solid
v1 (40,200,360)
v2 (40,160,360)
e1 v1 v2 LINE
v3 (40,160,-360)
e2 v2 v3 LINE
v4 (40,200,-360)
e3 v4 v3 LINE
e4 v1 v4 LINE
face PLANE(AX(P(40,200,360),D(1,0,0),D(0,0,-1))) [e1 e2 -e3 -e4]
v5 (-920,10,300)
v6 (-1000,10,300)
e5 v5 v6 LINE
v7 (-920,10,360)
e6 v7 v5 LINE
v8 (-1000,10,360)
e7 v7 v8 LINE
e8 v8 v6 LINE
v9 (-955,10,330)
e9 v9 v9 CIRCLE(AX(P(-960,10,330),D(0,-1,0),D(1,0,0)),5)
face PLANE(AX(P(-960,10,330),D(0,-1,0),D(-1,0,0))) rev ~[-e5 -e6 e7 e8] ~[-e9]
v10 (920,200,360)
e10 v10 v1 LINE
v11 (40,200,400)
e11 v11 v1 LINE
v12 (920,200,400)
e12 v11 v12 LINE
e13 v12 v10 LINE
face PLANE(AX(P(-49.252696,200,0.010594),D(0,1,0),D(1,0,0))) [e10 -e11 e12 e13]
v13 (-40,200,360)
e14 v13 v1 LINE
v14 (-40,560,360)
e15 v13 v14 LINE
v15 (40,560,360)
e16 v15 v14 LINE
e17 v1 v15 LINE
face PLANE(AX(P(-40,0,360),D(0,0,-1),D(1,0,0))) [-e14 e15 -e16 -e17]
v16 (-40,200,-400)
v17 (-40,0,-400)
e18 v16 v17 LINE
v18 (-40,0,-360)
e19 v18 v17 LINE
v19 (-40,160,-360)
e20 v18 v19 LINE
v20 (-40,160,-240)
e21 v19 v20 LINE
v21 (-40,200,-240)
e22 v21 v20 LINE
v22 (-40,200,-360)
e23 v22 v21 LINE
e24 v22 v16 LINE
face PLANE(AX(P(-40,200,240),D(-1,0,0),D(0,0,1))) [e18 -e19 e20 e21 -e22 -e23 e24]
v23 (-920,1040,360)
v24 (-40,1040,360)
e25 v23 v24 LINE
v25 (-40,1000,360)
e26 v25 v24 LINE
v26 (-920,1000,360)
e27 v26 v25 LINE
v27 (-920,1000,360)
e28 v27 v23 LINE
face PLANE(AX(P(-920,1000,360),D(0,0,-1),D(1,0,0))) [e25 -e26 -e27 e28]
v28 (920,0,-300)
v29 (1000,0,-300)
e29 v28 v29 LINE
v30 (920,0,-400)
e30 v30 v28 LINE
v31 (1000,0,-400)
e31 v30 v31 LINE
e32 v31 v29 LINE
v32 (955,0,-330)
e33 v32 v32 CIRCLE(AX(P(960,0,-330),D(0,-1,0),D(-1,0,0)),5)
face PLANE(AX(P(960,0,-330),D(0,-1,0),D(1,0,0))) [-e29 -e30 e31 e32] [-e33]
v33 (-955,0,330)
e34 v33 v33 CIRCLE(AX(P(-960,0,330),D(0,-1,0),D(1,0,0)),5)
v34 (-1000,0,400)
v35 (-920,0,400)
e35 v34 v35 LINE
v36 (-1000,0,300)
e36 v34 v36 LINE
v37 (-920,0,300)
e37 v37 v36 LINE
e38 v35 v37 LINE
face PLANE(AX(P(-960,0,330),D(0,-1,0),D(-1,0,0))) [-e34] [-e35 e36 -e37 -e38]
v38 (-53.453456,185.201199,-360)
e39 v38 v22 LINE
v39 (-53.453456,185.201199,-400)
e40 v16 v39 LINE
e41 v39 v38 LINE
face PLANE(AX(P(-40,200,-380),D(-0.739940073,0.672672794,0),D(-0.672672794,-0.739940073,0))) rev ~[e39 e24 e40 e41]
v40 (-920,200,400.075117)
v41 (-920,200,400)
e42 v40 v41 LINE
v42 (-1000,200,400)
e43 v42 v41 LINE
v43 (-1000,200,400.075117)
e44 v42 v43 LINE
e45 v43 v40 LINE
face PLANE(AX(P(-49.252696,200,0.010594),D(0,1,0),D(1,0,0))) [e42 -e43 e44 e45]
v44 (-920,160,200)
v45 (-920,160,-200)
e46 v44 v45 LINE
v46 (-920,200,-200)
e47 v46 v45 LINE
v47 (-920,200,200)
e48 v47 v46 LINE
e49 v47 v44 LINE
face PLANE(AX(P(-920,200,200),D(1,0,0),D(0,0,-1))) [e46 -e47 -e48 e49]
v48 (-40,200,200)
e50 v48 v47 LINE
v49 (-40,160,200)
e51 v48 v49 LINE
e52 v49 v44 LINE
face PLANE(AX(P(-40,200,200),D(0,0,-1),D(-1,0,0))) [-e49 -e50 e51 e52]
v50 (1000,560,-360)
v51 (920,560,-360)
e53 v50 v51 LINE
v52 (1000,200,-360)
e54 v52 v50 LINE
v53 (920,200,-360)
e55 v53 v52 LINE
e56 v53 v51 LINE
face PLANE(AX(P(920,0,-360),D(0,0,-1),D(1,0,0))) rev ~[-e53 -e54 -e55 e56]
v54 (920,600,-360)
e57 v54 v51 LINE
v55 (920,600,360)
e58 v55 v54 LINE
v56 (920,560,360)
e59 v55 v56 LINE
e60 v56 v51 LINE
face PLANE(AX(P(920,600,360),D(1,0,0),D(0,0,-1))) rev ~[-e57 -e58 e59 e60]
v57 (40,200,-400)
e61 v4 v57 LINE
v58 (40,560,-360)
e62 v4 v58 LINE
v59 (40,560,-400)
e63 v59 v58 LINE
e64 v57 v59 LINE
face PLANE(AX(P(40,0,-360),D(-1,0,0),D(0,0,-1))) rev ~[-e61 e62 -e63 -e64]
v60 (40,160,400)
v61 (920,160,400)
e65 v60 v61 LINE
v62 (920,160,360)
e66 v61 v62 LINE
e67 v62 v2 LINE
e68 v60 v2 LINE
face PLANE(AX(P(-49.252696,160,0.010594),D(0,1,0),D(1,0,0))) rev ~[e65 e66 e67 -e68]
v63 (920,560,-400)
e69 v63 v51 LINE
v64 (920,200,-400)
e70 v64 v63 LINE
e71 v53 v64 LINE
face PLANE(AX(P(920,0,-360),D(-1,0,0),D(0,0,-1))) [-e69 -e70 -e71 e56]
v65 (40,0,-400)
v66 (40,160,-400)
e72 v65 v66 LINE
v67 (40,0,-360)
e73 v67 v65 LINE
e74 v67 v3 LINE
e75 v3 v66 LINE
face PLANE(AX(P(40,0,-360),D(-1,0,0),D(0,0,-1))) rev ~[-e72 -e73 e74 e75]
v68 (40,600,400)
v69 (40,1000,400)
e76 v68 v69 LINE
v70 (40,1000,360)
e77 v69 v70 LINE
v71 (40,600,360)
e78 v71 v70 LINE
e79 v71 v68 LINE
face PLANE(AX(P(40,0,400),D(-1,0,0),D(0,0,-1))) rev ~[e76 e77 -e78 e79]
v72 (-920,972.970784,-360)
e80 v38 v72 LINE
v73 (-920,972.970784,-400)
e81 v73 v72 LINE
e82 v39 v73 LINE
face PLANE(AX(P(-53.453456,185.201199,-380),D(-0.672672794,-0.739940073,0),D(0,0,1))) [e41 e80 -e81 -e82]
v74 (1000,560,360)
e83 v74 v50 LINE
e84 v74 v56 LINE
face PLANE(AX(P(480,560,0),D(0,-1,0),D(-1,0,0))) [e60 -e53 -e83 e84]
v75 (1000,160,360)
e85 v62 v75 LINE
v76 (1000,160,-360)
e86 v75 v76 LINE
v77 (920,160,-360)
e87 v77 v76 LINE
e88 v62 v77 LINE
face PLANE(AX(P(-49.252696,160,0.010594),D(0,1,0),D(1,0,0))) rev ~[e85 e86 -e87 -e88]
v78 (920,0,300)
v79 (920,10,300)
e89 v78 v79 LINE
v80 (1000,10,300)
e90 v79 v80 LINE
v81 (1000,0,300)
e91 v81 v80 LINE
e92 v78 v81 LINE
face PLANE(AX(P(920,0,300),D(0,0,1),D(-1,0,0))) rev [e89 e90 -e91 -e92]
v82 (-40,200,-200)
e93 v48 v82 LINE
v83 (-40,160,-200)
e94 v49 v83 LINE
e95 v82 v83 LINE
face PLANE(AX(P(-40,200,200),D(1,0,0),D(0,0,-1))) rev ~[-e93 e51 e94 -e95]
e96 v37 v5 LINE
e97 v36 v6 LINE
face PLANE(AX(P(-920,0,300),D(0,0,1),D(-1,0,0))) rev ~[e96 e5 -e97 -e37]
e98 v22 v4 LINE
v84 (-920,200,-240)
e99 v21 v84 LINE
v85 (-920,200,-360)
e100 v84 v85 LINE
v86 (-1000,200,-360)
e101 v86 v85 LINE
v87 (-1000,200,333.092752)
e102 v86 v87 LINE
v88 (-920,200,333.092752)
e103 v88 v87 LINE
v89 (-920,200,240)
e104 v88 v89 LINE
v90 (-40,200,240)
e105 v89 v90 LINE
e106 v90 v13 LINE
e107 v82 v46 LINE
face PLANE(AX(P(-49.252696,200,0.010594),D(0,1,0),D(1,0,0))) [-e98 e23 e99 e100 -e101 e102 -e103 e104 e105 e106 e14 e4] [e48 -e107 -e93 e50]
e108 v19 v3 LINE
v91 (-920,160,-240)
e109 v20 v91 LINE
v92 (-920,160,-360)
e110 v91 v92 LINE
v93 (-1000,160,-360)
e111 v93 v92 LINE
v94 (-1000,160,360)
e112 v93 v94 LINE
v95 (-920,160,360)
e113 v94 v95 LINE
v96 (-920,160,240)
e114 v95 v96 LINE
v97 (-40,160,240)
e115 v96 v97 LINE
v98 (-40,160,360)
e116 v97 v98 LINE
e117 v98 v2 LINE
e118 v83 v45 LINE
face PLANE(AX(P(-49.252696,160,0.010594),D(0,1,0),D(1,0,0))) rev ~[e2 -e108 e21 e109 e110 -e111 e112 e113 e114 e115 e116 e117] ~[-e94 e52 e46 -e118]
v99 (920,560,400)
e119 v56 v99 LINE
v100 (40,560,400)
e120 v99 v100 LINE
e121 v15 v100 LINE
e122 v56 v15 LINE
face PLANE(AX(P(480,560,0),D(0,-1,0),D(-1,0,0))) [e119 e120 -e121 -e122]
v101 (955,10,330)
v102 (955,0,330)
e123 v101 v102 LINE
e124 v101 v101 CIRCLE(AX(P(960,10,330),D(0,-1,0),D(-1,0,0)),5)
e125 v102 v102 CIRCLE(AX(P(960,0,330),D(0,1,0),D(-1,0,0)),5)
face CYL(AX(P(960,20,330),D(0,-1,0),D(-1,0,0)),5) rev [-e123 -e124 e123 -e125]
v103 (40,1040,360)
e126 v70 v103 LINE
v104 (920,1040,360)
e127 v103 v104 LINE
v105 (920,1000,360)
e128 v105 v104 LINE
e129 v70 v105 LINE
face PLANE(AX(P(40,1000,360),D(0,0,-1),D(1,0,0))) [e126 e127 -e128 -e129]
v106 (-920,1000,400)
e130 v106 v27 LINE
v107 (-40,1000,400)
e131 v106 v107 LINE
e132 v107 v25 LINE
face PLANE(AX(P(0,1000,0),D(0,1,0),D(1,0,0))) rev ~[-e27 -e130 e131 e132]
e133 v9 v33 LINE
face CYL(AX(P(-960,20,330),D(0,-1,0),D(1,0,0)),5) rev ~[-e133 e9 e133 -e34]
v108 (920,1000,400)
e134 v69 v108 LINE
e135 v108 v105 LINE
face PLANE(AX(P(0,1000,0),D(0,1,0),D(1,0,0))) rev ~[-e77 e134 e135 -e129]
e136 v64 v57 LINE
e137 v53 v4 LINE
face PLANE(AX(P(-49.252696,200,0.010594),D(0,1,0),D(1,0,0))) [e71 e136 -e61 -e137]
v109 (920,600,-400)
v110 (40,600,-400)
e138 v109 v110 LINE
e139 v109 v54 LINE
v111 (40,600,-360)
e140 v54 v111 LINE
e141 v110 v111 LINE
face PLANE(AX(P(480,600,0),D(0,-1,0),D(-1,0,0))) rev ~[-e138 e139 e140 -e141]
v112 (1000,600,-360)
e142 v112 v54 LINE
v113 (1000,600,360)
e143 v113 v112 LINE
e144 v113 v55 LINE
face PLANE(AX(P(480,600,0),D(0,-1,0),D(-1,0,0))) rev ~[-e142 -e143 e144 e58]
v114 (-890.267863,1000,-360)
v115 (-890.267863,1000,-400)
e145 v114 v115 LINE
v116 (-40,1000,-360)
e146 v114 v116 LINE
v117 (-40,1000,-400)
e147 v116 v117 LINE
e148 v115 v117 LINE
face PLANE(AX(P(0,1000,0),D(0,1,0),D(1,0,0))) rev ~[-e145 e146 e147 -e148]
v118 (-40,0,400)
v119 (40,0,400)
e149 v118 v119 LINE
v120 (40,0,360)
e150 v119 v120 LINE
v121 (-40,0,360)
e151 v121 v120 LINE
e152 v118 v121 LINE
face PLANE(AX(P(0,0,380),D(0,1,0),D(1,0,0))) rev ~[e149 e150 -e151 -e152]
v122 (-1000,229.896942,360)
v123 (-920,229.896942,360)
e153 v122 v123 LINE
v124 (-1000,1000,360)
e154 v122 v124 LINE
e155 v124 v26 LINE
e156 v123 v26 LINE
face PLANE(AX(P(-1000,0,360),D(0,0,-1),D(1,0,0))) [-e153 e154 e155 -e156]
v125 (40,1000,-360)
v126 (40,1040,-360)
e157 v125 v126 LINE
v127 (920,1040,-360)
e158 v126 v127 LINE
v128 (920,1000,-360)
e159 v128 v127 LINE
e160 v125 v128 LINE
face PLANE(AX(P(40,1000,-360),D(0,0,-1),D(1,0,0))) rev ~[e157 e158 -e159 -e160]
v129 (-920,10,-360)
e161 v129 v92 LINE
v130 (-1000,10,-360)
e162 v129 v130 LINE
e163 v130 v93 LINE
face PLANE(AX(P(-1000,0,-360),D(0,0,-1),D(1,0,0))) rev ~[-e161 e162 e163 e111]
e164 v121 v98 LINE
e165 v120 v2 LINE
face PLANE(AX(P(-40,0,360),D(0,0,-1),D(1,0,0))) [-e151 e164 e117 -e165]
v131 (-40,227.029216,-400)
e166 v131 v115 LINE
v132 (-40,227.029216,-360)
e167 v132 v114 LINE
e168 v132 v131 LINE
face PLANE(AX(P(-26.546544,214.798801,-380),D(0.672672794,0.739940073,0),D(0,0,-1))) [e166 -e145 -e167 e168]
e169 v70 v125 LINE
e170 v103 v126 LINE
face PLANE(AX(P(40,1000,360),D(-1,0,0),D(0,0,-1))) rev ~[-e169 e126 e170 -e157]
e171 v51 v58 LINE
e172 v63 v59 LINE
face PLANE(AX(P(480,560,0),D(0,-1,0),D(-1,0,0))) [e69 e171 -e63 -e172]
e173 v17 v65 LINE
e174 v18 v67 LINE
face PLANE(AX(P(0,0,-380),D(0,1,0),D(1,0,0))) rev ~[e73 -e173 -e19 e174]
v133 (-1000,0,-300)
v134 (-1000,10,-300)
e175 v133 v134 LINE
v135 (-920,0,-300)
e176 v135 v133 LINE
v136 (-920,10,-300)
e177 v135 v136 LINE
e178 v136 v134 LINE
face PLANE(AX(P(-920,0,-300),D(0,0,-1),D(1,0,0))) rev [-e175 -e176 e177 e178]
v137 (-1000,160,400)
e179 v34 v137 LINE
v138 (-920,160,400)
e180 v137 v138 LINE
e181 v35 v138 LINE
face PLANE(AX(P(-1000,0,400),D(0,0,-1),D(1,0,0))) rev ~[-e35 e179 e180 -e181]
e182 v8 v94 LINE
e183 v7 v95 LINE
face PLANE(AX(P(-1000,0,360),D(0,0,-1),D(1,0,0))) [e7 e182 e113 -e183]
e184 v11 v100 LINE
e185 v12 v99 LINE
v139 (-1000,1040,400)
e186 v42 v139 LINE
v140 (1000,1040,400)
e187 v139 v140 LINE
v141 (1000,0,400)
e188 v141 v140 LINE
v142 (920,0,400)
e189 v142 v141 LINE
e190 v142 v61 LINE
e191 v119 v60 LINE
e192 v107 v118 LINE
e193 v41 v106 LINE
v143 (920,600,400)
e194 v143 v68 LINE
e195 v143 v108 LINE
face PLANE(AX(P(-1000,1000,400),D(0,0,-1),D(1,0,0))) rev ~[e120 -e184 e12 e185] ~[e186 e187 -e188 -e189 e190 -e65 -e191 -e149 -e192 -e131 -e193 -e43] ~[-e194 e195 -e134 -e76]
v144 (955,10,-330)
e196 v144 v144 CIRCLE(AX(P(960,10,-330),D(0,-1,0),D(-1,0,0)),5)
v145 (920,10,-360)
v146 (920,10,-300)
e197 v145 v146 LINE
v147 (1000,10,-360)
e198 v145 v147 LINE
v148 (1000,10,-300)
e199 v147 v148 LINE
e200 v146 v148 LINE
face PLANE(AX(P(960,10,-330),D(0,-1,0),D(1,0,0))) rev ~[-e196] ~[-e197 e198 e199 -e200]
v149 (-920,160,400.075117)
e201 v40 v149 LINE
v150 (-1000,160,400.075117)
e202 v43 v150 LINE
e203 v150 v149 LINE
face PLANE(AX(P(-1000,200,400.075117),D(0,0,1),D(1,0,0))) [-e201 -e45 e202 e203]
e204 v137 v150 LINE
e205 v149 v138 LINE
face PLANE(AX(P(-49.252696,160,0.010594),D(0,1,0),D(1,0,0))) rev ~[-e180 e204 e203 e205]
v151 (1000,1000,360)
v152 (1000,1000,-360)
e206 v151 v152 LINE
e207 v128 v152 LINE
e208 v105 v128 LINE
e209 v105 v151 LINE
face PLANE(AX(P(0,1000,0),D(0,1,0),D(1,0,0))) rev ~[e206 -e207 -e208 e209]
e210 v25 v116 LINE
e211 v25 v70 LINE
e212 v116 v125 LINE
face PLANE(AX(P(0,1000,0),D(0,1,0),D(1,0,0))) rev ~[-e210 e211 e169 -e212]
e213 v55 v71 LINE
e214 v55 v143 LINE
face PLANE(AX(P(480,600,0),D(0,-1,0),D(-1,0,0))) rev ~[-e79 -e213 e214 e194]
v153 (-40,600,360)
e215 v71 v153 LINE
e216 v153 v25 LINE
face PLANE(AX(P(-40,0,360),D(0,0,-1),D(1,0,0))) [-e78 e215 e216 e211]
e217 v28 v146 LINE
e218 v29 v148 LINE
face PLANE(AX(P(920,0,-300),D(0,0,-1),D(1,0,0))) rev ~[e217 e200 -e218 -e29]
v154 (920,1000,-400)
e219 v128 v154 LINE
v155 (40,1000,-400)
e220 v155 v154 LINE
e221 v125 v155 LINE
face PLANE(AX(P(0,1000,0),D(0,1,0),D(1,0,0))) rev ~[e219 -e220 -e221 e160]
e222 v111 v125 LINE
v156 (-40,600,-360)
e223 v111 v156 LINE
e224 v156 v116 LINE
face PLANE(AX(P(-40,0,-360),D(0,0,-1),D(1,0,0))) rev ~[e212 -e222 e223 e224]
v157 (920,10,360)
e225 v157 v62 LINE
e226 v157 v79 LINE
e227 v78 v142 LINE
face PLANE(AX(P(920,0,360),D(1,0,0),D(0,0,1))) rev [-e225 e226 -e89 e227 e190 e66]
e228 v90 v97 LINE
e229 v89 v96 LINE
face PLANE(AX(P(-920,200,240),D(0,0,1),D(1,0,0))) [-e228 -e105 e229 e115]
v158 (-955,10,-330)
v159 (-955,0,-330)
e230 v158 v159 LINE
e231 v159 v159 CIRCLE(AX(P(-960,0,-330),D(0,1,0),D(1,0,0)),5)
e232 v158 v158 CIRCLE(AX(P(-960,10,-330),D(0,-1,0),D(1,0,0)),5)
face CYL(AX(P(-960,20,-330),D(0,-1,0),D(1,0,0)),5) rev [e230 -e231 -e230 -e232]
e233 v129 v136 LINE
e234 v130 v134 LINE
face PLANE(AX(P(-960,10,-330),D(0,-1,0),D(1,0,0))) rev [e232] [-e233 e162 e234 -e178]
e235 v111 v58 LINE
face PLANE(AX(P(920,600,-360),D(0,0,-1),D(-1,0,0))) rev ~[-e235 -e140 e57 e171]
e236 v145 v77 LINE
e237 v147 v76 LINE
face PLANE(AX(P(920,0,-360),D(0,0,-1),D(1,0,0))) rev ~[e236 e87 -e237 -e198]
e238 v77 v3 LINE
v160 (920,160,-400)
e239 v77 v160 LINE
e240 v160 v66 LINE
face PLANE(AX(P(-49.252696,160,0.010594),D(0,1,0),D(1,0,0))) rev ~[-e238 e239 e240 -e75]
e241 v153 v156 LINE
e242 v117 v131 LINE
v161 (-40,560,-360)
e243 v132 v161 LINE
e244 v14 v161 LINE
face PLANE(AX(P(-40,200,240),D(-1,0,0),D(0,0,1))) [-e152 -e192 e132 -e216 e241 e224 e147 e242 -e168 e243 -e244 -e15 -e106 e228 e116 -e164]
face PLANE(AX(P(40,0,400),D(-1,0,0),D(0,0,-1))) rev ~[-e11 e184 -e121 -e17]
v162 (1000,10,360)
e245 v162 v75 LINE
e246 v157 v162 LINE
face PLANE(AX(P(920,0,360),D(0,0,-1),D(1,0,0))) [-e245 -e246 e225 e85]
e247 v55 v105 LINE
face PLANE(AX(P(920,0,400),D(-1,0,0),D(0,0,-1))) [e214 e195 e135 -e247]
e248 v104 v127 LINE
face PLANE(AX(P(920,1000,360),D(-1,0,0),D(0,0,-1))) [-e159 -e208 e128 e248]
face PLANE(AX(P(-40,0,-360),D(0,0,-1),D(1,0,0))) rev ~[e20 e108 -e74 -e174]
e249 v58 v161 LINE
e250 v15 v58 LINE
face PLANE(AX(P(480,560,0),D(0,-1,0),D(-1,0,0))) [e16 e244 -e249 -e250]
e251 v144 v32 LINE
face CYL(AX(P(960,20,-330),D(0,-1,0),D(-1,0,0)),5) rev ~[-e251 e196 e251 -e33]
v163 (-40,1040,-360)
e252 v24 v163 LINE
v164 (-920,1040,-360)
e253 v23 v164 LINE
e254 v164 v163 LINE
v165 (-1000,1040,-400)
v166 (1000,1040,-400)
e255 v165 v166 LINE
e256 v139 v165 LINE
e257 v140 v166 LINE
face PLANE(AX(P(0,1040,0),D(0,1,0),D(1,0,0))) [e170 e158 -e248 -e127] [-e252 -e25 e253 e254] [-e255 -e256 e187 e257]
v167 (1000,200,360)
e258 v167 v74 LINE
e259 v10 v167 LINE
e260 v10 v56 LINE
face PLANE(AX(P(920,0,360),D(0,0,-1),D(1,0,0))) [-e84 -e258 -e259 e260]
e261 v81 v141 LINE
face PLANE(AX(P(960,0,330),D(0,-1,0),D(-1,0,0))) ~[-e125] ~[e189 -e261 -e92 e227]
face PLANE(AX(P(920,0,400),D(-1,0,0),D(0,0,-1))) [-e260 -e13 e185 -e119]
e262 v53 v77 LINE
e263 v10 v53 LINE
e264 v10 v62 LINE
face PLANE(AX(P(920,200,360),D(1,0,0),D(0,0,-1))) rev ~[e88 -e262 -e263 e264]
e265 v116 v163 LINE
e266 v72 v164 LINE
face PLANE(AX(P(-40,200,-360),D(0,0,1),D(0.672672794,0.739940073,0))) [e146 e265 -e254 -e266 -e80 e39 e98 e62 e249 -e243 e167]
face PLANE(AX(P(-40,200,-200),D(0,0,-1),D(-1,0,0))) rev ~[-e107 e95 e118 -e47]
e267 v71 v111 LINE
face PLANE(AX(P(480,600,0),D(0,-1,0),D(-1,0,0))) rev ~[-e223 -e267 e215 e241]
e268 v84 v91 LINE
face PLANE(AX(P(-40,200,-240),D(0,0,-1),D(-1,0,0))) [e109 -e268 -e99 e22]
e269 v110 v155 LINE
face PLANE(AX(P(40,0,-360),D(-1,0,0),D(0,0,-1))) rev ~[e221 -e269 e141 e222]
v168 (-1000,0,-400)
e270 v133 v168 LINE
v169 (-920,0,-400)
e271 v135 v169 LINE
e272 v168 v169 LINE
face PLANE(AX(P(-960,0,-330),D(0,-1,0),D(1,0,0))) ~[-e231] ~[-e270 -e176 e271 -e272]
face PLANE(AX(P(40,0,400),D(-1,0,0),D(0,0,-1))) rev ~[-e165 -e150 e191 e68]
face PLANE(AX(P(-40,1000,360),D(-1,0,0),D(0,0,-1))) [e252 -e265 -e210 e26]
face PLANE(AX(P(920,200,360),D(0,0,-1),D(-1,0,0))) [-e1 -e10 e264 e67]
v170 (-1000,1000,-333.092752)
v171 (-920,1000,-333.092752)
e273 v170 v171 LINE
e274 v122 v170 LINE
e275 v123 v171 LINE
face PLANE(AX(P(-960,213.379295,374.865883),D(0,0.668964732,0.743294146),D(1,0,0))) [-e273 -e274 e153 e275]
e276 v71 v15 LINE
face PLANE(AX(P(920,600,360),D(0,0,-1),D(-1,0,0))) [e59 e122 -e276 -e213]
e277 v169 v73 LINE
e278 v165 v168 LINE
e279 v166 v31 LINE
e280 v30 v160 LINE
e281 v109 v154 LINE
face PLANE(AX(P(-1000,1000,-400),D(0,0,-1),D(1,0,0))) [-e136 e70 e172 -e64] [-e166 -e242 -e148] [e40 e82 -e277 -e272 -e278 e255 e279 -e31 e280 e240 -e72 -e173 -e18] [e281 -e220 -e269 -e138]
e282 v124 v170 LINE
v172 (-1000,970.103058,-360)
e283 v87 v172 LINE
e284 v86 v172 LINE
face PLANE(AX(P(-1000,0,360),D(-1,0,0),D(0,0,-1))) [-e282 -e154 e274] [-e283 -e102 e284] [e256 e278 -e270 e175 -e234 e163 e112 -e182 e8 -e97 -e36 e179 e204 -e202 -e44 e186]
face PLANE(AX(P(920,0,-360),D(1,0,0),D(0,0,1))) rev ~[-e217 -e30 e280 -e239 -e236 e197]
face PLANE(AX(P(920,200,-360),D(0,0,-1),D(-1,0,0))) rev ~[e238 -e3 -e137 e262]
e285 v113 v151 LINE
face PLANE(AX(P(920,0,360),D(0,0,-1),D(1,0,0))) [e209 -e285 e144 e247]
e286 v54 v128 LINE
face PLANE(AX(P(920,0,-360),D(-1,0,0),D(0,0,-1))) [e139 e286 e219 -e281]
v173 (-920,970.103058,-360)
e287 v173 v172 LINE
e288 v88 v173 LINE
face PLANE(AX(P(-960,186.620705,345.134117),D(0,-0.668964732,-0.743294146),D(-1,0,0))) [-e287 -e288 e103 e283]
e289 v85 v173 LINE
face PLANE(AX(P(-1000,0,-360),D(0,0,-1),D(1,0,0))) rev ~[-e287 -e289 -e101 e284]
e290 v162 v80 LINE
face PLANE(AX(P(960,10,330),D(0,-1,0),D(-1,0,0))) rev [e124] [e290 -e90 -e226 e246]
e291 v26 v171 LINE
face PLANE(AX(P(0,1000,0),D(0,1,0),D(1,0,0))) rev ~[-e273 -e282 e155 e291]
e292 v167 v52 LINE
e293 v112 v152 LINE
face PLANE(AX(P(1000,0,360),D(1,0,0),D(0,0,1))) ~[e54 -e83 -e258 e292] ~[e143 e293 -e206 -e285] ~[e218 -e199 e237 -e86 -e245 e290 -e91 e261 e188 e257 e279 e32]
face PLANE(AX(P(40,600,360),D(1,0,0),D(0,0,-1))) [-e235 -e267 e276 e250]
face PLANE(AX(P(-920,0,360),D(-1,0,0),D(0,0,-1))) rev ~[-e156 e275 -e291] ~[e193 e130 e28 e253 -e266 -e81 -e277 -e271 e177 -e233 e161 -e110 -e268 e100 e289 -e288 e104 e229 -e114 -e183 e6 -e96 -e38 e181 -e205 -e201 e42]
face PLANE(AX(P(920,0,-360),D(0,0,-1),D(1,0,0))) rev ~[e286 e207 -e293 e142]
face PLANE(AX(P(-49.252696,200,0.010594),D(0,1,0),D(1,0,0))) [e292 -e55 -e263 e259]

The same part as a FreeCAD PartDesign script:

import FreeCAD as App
import Part
import Sketcher
from FreeCAD import Vector

doc = App.newDocument("Part")
params = doc.addObject("Spreadsheet::Sheet", "Params")
for row, (alias, value) in enumerate([
    ("sketch1_width", "80 mm"),
    ("sketch1_height", "40 mm"),
    ("pad1_length", "1000 mm"),
    ("sketch2_width", "80 mm"),
    ("sketch2_height", "40 mm"),
    ("pad2_length", "1000 mm"),
    ("sketch3_width", "80 mm"),
    ("sketch3_height", "40 mm"),
    ("pad3_length", "1000 mm"),
    ("sketch4_width", "80 mm"),
    ("sketch4_height", "40 mm"),
    ("pad4_length", "1000 mm"),
    ("sketch5_width", "80 mm"),
    ("sketch5_height", "40 mm"),
    ("pad5_length", "1000 mm"),
    ("sketch6_width", "80 mm"),
    ("sketch6_height", "40 mm"),
    ("pad6_length", "1000 mm"),
    ("sketch7_width", "880 mm"),
    ("sketch7_width2", "80 mm"),
    ("sketch7_width3", "1040 mm"),
    ("sketch7_height", "160 mm"),
    ("sketch7_height2", "800 mm"),
    ("pad7_length", "40 mm"),
    ("sketch8_width", "1040 mm"),
    ("sketch8_width2", "880 mm"),
    ("sketch8_height", "800 mm"),
    ("sketch8_height2", "720 mm"),
    ("pad8_length", "40 mm"),
    ("sketch9_width", "2000 mm"),
    ("sketch9_width2", "880 mm"),
    ("sketch9_height", "800 mm"),
    ("sketch9_height2", "720 mm"),
    ("pad9_length", "40 mm"),
    ("sketch10_width", "80 mm"),
    ("sketch10_height", "40 mm"),
    ("sketch12_width", "40 mm"),
    ("sketch14_width", "80 mm"),
    ("sketch14_height", "60 mm"),
    ("pad10_length", "10 mm"),
    ("sketch15_diameter", "10 mm"),
    ("hole_diameter", "10 mm"),
    ("hole_depth", "10 mm"),
    ("sketch16_width", "80 mm"),
    ("sketch16_height", "60 mm"),
    ("pad11_length", "10 mm"),
    ("sketch17_diameter", "10 mm"),
    ("hole2_diameter", "10 mm"),
    ("hole2_depth", "10 mm"),
], start=1):
    params.set(f"A{row}", alias)
    params.set(f"B{row}", "=" + value)
    params.setAlias(f"B{row}", alias)

body = doc.addObject("PartDesign::Body", "Body")

sketch1 = body.newObject("Sketcher::SketchObject", "Sketch")
sketch1.AttachmentSupport = (doc.getObject("XZ_Plane"), [""])
sketch1.MapMode = "FlatFace"
sketch1.addGeometry([
    Part.LineSegment(Vector(-1000, 360, 0), Vector(-1000, 400, 0)),
    Part.LineSegment(Vector(-1000, 400, 0), Vector(-920, 400, 0)),
    Part.LineSegment(Vector(-920, 400, 0), Vector(-920, 360, 0)),
    Part.LineSegment(Vector(-920, 360, 0), Vector(-1000, 360, 0)),
], False)
sketch1.addConstraint([
    Sketcher.Constraint("Coincident", 0, 2, 1, 1),
    Sketcher.Constraint("Coincident", 1, 2, 2, 1),
    Sketcher.Constraint("Coincident", 2, 2, 3, 1),
    Sketcher.Constraint("Coincident", 3, 2, 0, 1),
    Sketcher.Constraint("Vertical", 0),
    Sketcher.Constraint("Horizontal", 1),
    Sketcher.Constraint("Vertical", 2),
    Sketcher.Constraint("Horizontal", 3),
    Sketcher.Constraint("DistanceX", 1, 1, 1, 2, 80.0),
    Sketcher.Constraint("DistanceY", 0, 1, 0, 2, 40.0),
    Sketcher.Constraint("DistanceX", 0, 2, -1, 1, 1000.0),
    Sketcher.Constraint("DistanceY", -1, 1, 0, 2, 400.0),
])
sketch1.setExpression("Constraints[8]", "Params.sketch1_width")
sketch1.setExpression("Constraints[9]", "Params.sketch1_height")
pad1 = body.newObject("PartDesign::Pad", "Pad")
pad1.Profile = sketch1
pad1.setExpression("Length", "Params.pad1_length")
pad1.Reversed = True
body2 = doc.addObject("PartDesign::Body", "Body001")

sketch2 = body2.newObject("Sketcher::SketchObject", "Sketch001")
sketch2.AttachmentSupport = (doc.getObject("XZ_Plane001"), [""])
sketch2.MapMode = "FlatFace"
sketch2.addGeometry([
    Part.LineSegment(Vector(-40, 360, 0), Vector(-40, 400, 0)),
    Part.LineSegment(Vector(-40, 400, 0), Vector(40, 400, 0)),
    Part.LineSegment(Vector(40, 400, 0), Vector(40, 360, 0)),
    Part.LineSegment(Vector(40, 360, 0), Vector(-40, 360, 0)),
], False)
sketch2.addConstraint([
    Sketcher.Constraint("Coincident", 0, 2, 1, 1),
    Sketcher.Constraint("Coincident", 1, 2, 2, 1),
    Sketcher.Constraint("Coincident", 2, 2, 3, 1),
    Sketcher.Constraint("Coincident", 3, 2, 0, 1),
    Sketcher.Constraint("Vertical", 0),
    Sketcher.Constraint("Horizontal", 1),
    Sketcher.Constraint("Vertical", 2),
    Sketcher.Constraint("Horizontal", 3),
    Sketcher.Constraint("DistanceX", 1, 1, 1, 2, 80.0),
    Sketcher.Constraint("DistanceY", 0, 1, 0, 2, 40.0),
    Sketcher.Constraint("DistanceX", 0, 2, -1, 1, 40.0),
    Sketcher.Constraint("DistanceY", -1, 1, 0, 2, 400.0),
])
sketch2.setExpression("Constraints[8]", "Params.sketch2_width")
sketch2.setExpression("Constraints[9]", "Params.sketch2_height")
pad2 = body2.newObject("PartDesign::Pad", "Pad001")
pad2.Profile = sketch2
pad2.setExpression("Length", "Params.pad2_length")
pad2.Reversed = True
body3 = doc.addObject("PartDesign::Body", "Body002")

sketch3 = body3.newObject("Sketcher::SketchObject", "Sketch002")
sketch3.AttachmentSupport = (doc.getObject("XZ_Plane002"), [""])
sketch3.MapMode = "FlatFace"
sketch3.addGeometry([
    Part.LineSegment(Vector(-40, -400, 0), Vector(-40, -360, 0)),
    Part.LineSegment(Vector(-40, -360, 0), Vector(40, -360, 0)),
    Part.LineSegment(Vector(40, -360, 0), Vector(40, -400, 0)),
    Part.LineSegment(Vector(40, -400, 0), Vector(-40, -400, 0)),
], False)
sketch3.addConstraint([
    Sketcher.Constraint("Coincident", 0, 2, 1, 1),
    Sketcher.Constraint("Coincident", 1, 2, 2, 1),
    Sketcher.Constraint("Coincident", 2, 2, 3, 1),
    Sketcher.Constraint("Coincident", 3, 2, 0, 1),
    Sketcher.Constraint("Vertical", 0),
    Sketcher.Constraint("Horizontal", 1),
    Sketcher.Constraint("Vertical", 2),
    Sketcher.Constraint("Horizontal", 3),
    Sketcher.Constraint("DistanceX", 1, 1, 1, 2, 80.0),
    Sketcher.Constraint("DistanceY", 0, 1, 0, 2, 40.0),
    Sketcher.Constraint("DistanceX", 0, 2, -1, 1, 40.0),
    Sketcher.Constraint("DistanceY", 0, 2, -1, 1, 360.0),
])
sketch3.setExpression("Constraints[8]", "Params.sketch3_width")
sketch3.setExpression("Constraints[9]", "Params.sketch3_height")
pad3 = body3.newObject("PartDesign::Pad", "Pad002")
pad3.Profile = sketch3
pad3.setExpression("Length", "Params.pad3_length")
pad3.Reversed = True
body4 = doc.addObject("PartDesign::Body", "Body003")

sketch4 = body4.newObject("Sketcher::SketchObject", "Sketch003")
sketch4.AttachmentSupport = (doc.getObject("XZ_Plane003"), [""])
sketch4.MapMode = "FlatFace"
sketch4.addGeometry([
    Part.LineSegment(Vector(-1000, -400, 0), Vector(-1000, -360, 0)),
    Part.LineSegment(Vector(-1000, -360, 0), Vector(-920, -360, 0)),
    Part.LineSegment(Vector(-920, -360, 0), Vector(-920, -400, 0)),
    Part.LineSegment(Vector(-920, -400, 0), Vector(-1000, -400, 0)),
], False)
sketch4.addConstraint([
    Sketcher.Constraint("Coincident", 0, 2, 1, 1),
    Sketcher.Constraint("Coincident", 1, 2, 2, 1),
    Sketcher.Constraint("Coincident", 2, 2, 3, 1),
    Sketcher.Constraint("Coincident", 3, 2, 0, 1),
    Sketcher.Constraint("Vertical", 0),
    Sketcher.Constraint("Horizontal", 1),
    Sketcher.Constraint("Vertical", 2),
    Sketcher.Constraint("Horizontal", 3),
    Sketcher.Constraint("DistanceX", 1, 1, 1, 2, 80.0),
    Sketcher.Constraint("DistanceY", 0, 1, 0, 2, 40.0),
    Sketcher.Constraint("DistanceX", 0, 2, -1, 1, 1000.0),
    Sketcher.Constraint("DistanceY", 0, 2, -1, 1, 360.0),
])
sketch4.setExpression("Constraints[8]", "Params.sketch4_width")
sketch4.setExpression("Constraints[9]", "Params.sketch4_height")
pad4 = body4.newObject("PartDesign::Pad", "Pad003")
pad4.Profile = sketch4
pad4.setExpression("Length", "Params.pad4_length")
pad4.Reversed = True
body5 = doc.addObject("PartDesign::Body", "Body004")

sketch5 = body5.newObject("Sketcher::SketchObject", "Sketch004")
sketch5.AttachmentSupport = (doc.getObject("XZ_Plane004"), [""])
sketch5.MapMode = "FlatFace"
sketch5.addGeometry([
    Part.LineSegment(Vector(920, 360, 0), Vector(920, 400, 0)),
    Part.LineSegment(Vector(920, 400, 0), Vector(1000, 400, 0)),
    Part.LineSegment(Vector(1000, 400, 0), Vector(1000, 360, 0)),
    Part.LineSegment(Vector(1000, 360, 0), Vector(920, 360, 0)),
], False)
sketch5.addConstraint([
    Sketcher.Constraint("Coincident", 0, 2, 1, 1),
    Sketcher.Constraint("Coincident", 1, 2, 2, 1),
    Sketcher.Constraint("Coincident", 2, 2, 3, 1),
    Sketcher.Constraint("Coincident", 3, 2, 0, 1),
    Sketcher.Constraint("Vertical", 0),
    Sketcher.Constraint("Horizontal", 1),
    Sketcher.Constraint("Vertical", 2),
    Sketcher.Constraint("Horizontal", 3),
    Sketcher.Constraint("DistanceX", 1, 1, 1, 2, 80.0),
    Sketcher.Constraint("DistanceY", 0, 1, 0, 2, 40.0),
    Sketcher.Constraint("DistanceX", -1, 1, 0, 2, 920.0),
    Sketcher.Constraint("DistanceY", -1, 1, 0, 2, 400.0),
])
sketch5.setExpression("Constraints[8]", "Params.sketch5_width")
sketch5.setExpression("Constraints[9]", "Params.sketch5_height")
pad5 = body5.newObject("PartDesign::Pad", "Pad004")
pad5.Profile = sketch5
pad5.setExpression("Length", "Params.pad5_length")
pad5.Reversed = True
body6 = doc.addObject("PartDesign::Body", "Body005")

sketch6 = body6.newObject("Sketcher::SketchObject", "Sketch005")
sketch6.AttachmentSupport = (doc.getObject("XZ_Plane005"), [""])
sketch6.MapMode = "FlatFace"
sketch6.addGeometry([
    Part.LineSegment(Vector(920, -400, 0), Vector(920, -360, 0)),
    Part.LineSegment(Vector(920, -360, 0), Vector(1000, -360, 0)),
    Part.LineSegment(Vector(1000, -360, 0), Vector(1000, -400, 0)),
    Part.LineSegment(Vector(1000, -400, 0), Vector(920, -400, 0)),
], False)
sketch6.addConstraint([
    Sketcher.Constraint("Coincident", 0, 2, 1, 1),
    Sketcher.Constraint("Coincident", 1, 2, 2, 1),
    Sketcher.Constraint("Coincident", 2, 2, 3, 1),
    Sketcher.Constraint("Coincident", 3, 2, 0, 1),
    Sketcher.Constraint("Vertical", 0),
    Sketcher.Constraint("Horizontal", 1),
    Sketcher.Constraint("Vertical", 2),
    Sketcher.Constraint("Horizontal", 3),
    Sketcher.Constraint("DistanceX", 1, 1, 1, 2, 80.0),
    Sketcher.Constraint("DistanceY", 0, 1, 0, 2, 40.0),
    Sketcher.Constraint("DistanceX", -1, 1, 0, 2, 920.0),
    Sketcher.Constraint("DistanceY", 0, 2, -1, 1, 360.0),
])
sketch6.setExpression("Constraints[8]", "Params.sketch6_width")
sketch6.setExpression("Constraints[9]", "Params.sketch6_height")
pad6 = body6.newObject("PartDesign::Pad", "Pad005")
pad6.Profile = sketch6
pad6.setExpression("Length", "Params.pad6_length")
pad6.Reversed = True
body.AllowCompound = True
doc.recompute()

boolean = body.newObject("PartDesign::Boolean", "Boolean")
boolean.Type = "Fuse"
boolean.addObjects([body2])
doc.recompute()

boolean2 = body.newObject("PartDesign::Boolean", "Boolean001")
boolean2.Type = "Fuse"
boolean2.addObjects([body3])
doc.recompute()

boolean3 = body.newObject("PartDesign::Boolean", "Boolean002")
boolean3.Type = "Fuse"
boolean3.addObjects([body4])
doc.recompute()

boolean4 = body.newObject("PartDesign::Boolean", "Boolean003")
boolean4.Type = "Fuse"
boolean4.addObjects([body5])
doc.recompute()

boolean5 = body.newObject("PartDesign::Boolean", "Boolean004")
boolean5.Type = "Fuse"
boolean5.addObjects([body6])

sketch7 = body.newObject("Sketcher::SketchObject", "Sketch006")
sketch7.AttachmentSupport = (doc.getObject("XZ_Plane"), [""])
sketch7.MapMode = "FlatFace"
sketch7.AttachmentOffset = App.Placement(Vector(0, 0, -200), App.Rotation())
sketch7.addGeometry([
    Part.LineSegment(Vector(-40, 240, 0), Vector(-920, 240, 0)),
    Part.LineSegment(Vector(-920, 240, 0), Vector(-920, 400.075117, 0)),
    Part.LineSegment(Vector(-920, 400.075117, 0), Vector(-1000, 400.075117, 0)),
    Part.LineSegment(Vector(-1000, 400.075117, 0), Vector(-1000, -400, 0)),
    Part.LineSegment(Vector(-1000, -400, 0), Vector(-920, -400, 0)),
    Part.LineSegment(Vector(-920, -400, 0), Vector(-920, -240, 0)),
    Part.LineSegment(Vector(-920, -240, 0), Vector(-40, -240, 0)),
    Part.LineSegment(Vector(-40, -240, 0), Vector(-40, -400, 0)),
    Part.LineSegment(Vector(-40, -400, 0), Vector(1000, -400, 0)),
    Part.LineSegment(Vector(1000, -400, 0), Vector(1000, 400, 0)),
    Part.LineSegment(Vector(1000, 400, 0), Vector(-40, 400, 0)),
    Part.LineSegment(Vector(-40, 400, 0), Vector(-40, 240, 0)),
    Part.LineSegment(Vector(-40, 200, 0), Vector(-40, -200, 0)),
    Part.LineSegment(Vector(-40, -200, 0), Vector(-920, -200, 0)),
    Part.LineSegment(Vector(-920, -200, 0), Vector(-920, 200, 0)),
    Part.LineSegment(Vector(-920, 200, 0), Vector(-40, 200, 0)),
    Part.LineSegment(Vector(920, 360, 0), Vector(920, -360, 0)),
    Part.LineSegment(Vector(920, -360, 0), Vector(40, -360, 0)),
    Part.LineSegment(Vector(40, -360, 0), Vector(40, 360, 0)),
    Part.LineSegment(Vector(40, 360, 0), Vector(920, 360, 0)),
], False)
sketch7.addConstraint([
    Sketcher.Constraint("Coincident", 0, 2, 1, 1),
    Sketcher.Constraint("Coincident", 1, 2, 2, 1),
    Sketcher.Constraint("Coincident", 2, 2, 3, 1),
    Sketcher.Constraint("Coincident", 3, 2, 4, 1),
    Sketcher.Constraint("Coincident", 4, 2, 5, 1),
    Sketcher.Constraint("Coincident", 5, 2, 6, 1),
    Sketcher.Constraint("Coincident", 6, 2, 7, 1),
    Sketcher.Constraint("Coincident", 7, 2, 8, 1),
    Sketcher.Constraint("Coincident", 8, 2, 9, 1),
    Sketcher.Constraint("Coincident", 9, 2, 10, 1),
    Sketcher.Constraint("Coincident", 10, 2, 11, 1),
    Sketcher.Constraint("Coincident", 11, 2, 0, 1),
    Sketcher.Constraint("Coincident", 12, 2, 13, 1),
    Sketcher.Constraint("Coincident", 13, 2, 14, 1),
    Sketcher.Constraint("Coincident", 14, 2, 15, 1),
    Sketcher.Constraint("Coincident", 15, 2, 12, 1),
    Sketcher.Constraint("Coincident", 16, 2, 17, 1),
    Sketcher.Constraint("Coincident", 17, 2, 18, 1),
    Sketcher.Constraint("Coincident", 18, 2, 19, 1),
    Sketcher.Constraint("Coincident", 19, 2, 16, 1),
    Sketcher.Constraint("Horizontal", 0),
    Sketcher.Constraint("Vertical", 1),
    Sketcher.Constraint("Horizontal", 2),
    Sketcher.Constraint("Vertical", 3),
    Sketcher.Constraint("Horizontal", 4),
    Sketcher.Constraint("Vertical", 5),
    Sketcher.Constraint("Horizontal", 6),
    Sketcher.Constraint("Vertical", 7),
    Sketcher.Constraint("Horizontal", 8),
    Sketcher.Constraint("Vertical", 9),
    Sketcher.Constraint("Horizontal", 10),
    Sketcher.Constraint("Vertical", 11),
    Sketcher.Constraint("Vertical", 12),
    Sketcher.Constraint("Horizontal", 13),
    Sketcher.Constraint("Vertical", 14),
    Sketcher.Constraint("Horizontal", 15),
    Sketcher.Constraint("Vertical", 16),
    Sketcher.Constraint("Horizontal", 17),
    Sketcher.Constraint("Vertical", 18),
    Sketcher.Constraint("Horizontal", 19),
    Sketcher.Constraint("Symmetric", 3, 2, 9, 2, -1, 1),
    Sketcher.Constraint("Symmetric", 0, 2, 5, 2, -1),
    Sketcher.Constraint("Symmetric", 7, 2, 10, 2, -1),
    Sketcher.Constraint("Vertical", 11, 2, 12, 2),
    Sketcher.Constraint("Vertical", 5, 2, 13, 2),
    Sketcher.Constraint("Equal", 15, 17),
    Sketcher.Constraint("DistanceX", 0, 2, 0, 1, 880.0),
    Sketcher.Constraint("DistanceX", 2, 2, 2, 1, 80.0),
    Sketcher.Constraint("DistanceX", 8, 1, 8, 2, 1040.0),
    Sketcher.Constraint("DistanceY", 5, 1, 5, 2, 160.0),
    Sketcher.Constraint("DistanceY", 9, 1, 9, 2, 800.0),
    Sketcher.Constraint("DistanceY", 12, 2, 12, 1, 400.0),
    Sketcher.Constraint("DistanceY", 16, 2, 16, 1, 720.0),
    Sketcher.Constraint("DistanceY", 12, 2, -1, 1, 200.0),
    Sketcher.Constraint("DistanceX", -1, 1, 16, 2, 920.0),
    Sketcher.Constraint("DistanceY", 16, 2, -1, 1, 360.0),
    Sketcher.Constraint("DistanceY", 1, 1, 1, 2, 160.075117),
])
sketch7.setExpression("Constraints[46]", "Params.sketch7_width")
sketch7.setExpression("Constraints[47]", "Params.sketch7_width2")
sketch7.setExpression("Constraints[48]", "Params.sketch7_width3")
sketch7.setExpression("Constraints[49]", "Params.sketch7_height")
sketch7.setExpression("Constraints[50]", "Params.sketch7_height2")
pad7 = body.newObject("PartDesign::Pad", "Pad006")
pad7.Profile = sketch7
pad7.setExpression("Length", "Params.pad7_length")

sketch8 = body.newObject("Sketcher::SketchObject", "Sketch007")
sketch8.AttachmentSupport = (doc.getObject("XZ_Plane"), [""])
sketch8.MapMode = "FlatFace"
sketch8.AttachmentOffset = App.Placement(Vector(0, 0, -600), App.Rotation())
sketch8.addGeometry([
    Part.LineSegment(Vector(1000, -400, 0), Vector(1000, 400, 0)),
    Part.LineSegment(Vector(1000, 400, 0), Vector(-40, 400, 0)),
    Part.LineSegment(Vector(-40, 400, 0), Vector(-40, -400, 0)),
    Part.LineSegment(Vector(-40, -400, 0), Vector(1000, -400, 0)),
    Part.LineSegment(Vector(40, 360, 0), Vector(920, 360, 0)),
    Part.LineSegment(Vector(920, 360, 0), Vector(920, -360, 0)),
    Part.LineSegment(Vector(920, -360, 0), Vector(40, -360, 0)),
    Part.LineSegment(Vector(40, -360, 0), Vector(40, 360, 0)),
], False)
sketch8.addConstraint([
    Sketcher.Constraint("Coincident", 0, 2, 1, 1),
    Sketcher.Constraint("Coincident", 1, 2, 2, 1),
    Sketcher.Constraint("Coincident", 2, 2, 3, 1),
    Sketcher.Constraint("Coincident", 3, 2, 0, 1),
    Sketcher.Constraint("Coincident", 4, 2, 5, 1),
    Sketcher.Constraint("Coincident", 5, 2, 6, 1),
    Sketcher.Constraint("Coincident", 6, 2, 7, 1),
    Sketcher.Constraint("Coincident", 7, 2, 4, 1),
    Sketcher.Constraint("Vertical", 0),
    Sketcher.Constraint("Horizontal", 1),
    Sketcher.Constraint("Vertical", 2),
    Sketcher.Constraint("Horizontal", 3),
    Sketcher.Constraint("Horizontal", 4),
    Sketcher.Constraint("Vertical", 5),
    Sketcher.Constraint("Horizontal", 6),
    Sketcher.Constraint("Vertical", 7),
    Sketcher.Constraint("DistanceX", 1, 2, 1, 1, 1040.0),
    Sketcher.Constraint("DistanceX", 4, 1, 4, 2, 880.0),
    Sketcher.Constraint("DistanceY", 0, 1, 0, 2, 800.0),
    Sketcher.Constraint("DistanceY", 5, 2, 5, 1, 720.0),
    Sketcher.Constraint("DistanceX", -1, 1, 0, 2, 1000.0),
    Sketcher.Constraint("DistanceY", -1, 1, 0, 2, 400.0),
    Sketcher.Constraint("DistanceX", -1, 1, 4, 2, 920.0),
    Sketcher.Constraint("DistanceY", -1, 1, 4, 2, 360.0),
])
sketch8.setExpression("Constraints[16]", "Params.sketch8_width")
sketch8.setExpression("Constraints[17]", "Params.sketch8_width2")
sketch8.setExpression("Constraints[18]", "Params.sketch8_height")
sketch8.setExpression("Constraints[19]", "Params.sketch8_height2")
pad8 = body.newObject("PartDesign::Pad", "Pad007")
pad8.Profile = sketch8
pad8.setExpression("Length", "Params.pad8_length")

sketch9 = body.newObject("Sketcher::SketchObject", "Sketch008")
sketch9.AttachmentSupport = (doc.getObject("XZ_Plane"), [""])
sketch9.MapMode = "FlatFace"
sketch9.AttachmentOffset = App.Placement(Vector(0, 0, -1000), App.Rotation())
sketch9.addGeometry([
    Part.LineSegment(Vector(-1000, -400, 0), Vector(-1000, 400, 0)),
    Part.LineSegment(Vector(-1000, 400, 0), Vector(1000, 400, 0)),
    Part.LineSegment(Vector(1000, 400, 0), Vector(1000, -400, 0)),
    Part.LineSegment(Vector(1000, -400, 0), Vector(-1000, -400, 0)),
    Part.LineSegment(Vector(-40, 360, 0), Vector(-920, 360, 0)),
    Part.LineSegment(Vector(-920, 360, 0), Vector(-920, -360, 0)),
    Part.LineSegment(Vector(-920, -360, 0), Vector(-40, -360, 0)),
    Part.LineSegment(Vector(-40, -360, 0), Vector(-40, 360, 0)),
    Part.LineSegment(Vector(920, 360, 0), Vector(40, 360, 0)),
    Part.LineSegment(Vector(40, 360, 0), Vector(40, -360, 0)),
    Part.LineSegment(Vector(40, -360, 0), Vector(920, -360, 0)),
    Part.LineSegment(Vector(920, -360, 0), Vector(920, 360, 0)),
], False)
sketch9.addConstraint([
    Sketcher.Constraint("Coincident", 0, 2, 1, 1),
    Sketcher.Constraint("Coincident", 1, 2, 2, 1),
    Sketcher.Constraint("Coincident", 2, 2, 3, 1),
    Sketcher.Constraint("Coincident", 3, 2, 0, 1),
    Sketcher.Constraint("Coincident", 4, 2, 5, 1),
    Sketcher.Constraint("Coincident", 5, 2, 6, 1),
    Sketcher.Constraint("Coincident", 6, 2, 7, 1),
    Sketcher.Constraint("Coincident", 7, 2, 4, 1),
    Sketcher.Constraint("Coincident", 8, 2, 9, 1),
    Sketcher.Constraint("Coincident", 9, 2, 10, 1),
    Sketcher.Constraint("Coincident", 10, 2, 11, 1),
    Sketcher.Constraint("Coincident", 11, 2, 8, 1),
    Sketcher.Constraint("Vertical", 0),
    Sketcher.Constraint("Horizontal", 1),
    Sketcher.Constraint("Vertical", 2),
    Sketcher.Constraint("Horizontal", 3),
    Sketcher.Constraint("Horizontal", 4),
    Sketcher.Constraint("Vertical", 5),
    Sketcher.Constraint("Horizontal", 6),
    Sketcher.Constraint("Vertical", 7),
    Sketcher.Constraint("Horizontal", 8),
    Sketcher.Constraint("Vertical", 9),
    Sketcher.Constraint("Horizontal", 10),
    Sketcher.Constraint("Vertical", 11),
    Sketcher.Constraint("Symmetric", 0, 2, 2, 2, -1, 1),
    Sketcher.Constraint("Symmetric", 6, 2, 8, 2, -1, 1),
    Sketcher.Constraint("Symmetric", 4, 2, 10, 2, -1, 1),
    Sketcher.Constraint("Horizontal", 7, 2, 8, 2),
    Sketcher.Constraint("DistanceX", 1, 1, 1, 2, 2000.0),
    Sketcher.Constraint("DistanceX", 4, 2, 4, 1, 880.0),
    Sketcher.Constraint("DistanceY", 0, 1, 0, 2, 800.0),
    Sketcher.Constraint("DistanceY", 5, 2, 5, 1, 720.0),
    Sketcher.Constraint("DistanceX", 4, 2, -1, 1, 920.0),
])
sketch9.setExpression("Constraints[28]", "Params.sketch9_width")
sketch9.setExpression("Constraints[29]", "Params.sketch9_width2")
sketch9.setExpression("Constraints[30]", "Params.sketch9_height")
sketch9.setExpression("Constraints[31]", "Params.sketch9_height2")
pad9 = body.newObject("PartDesign::Pad", "Pad008")
pad9.Profile = sketch9
pad9.setExpression("Length", "Params.pad9_length")
pad9.Reversed = True

sketch10 = body.newObject("Sketcher::SketchObject", "Sketch009")
sketch10.Placement = App.Placement(Vector(-960, 200, 360), App.Rotation(Vector(1, 0, 0), Vector(0, -0.668964732, -0.743294146), Vector(0, 0.743294146, -0.668964732), "ZXY"))
sketch10.addGeometry([
    Part.LineSegment(Vector(-40, 20, 0), Vector(-40, -20, 0)),
    Part.LineSegment(Vector(-40, -20, 0), Vector(40, -20, 0)),
    Part.LineSegment(Vector(40, -20, 0), Vector(40, 20, 0)),
    Part.LineSegment(Vector(40, 20, 0), Vector(-40, 20, 0)),
], False)
sketch10.addConstraint([
    Sketcher.Constraint("Coincident", 0, 2, 1, 1),
    Sketcher.Constraint("Coincident", 1, 2, 2, 1),
    Sketcher.Constraint("Coincident", 2, 2, 3, 1),
    Sketcher.Constraint("Coincident", 3, 2, 0, 1),
    Sketcher.Constraint("Vertical", 0),
    Sketcher.Constraint("Horizontal", 1),
    Sketcher.Constraint("Vertical", 2),
    Sketcher.Constraint("Horizontal", 3),
    Sketcher.Constraint("Symmetric", 0, 2, 2, 2, -1, 1),
    Sketcher.Constraint("DistanceX", 1, 1, 1, 2, 80.0),
    Sketcher.Constraint("DistanceY", 0, 2, 0, 1, 40.0),
])
sketch10.setExpression("Constraints[9]", "Params.sketch10_width")
sketch10.setExpression("Constraints[10]", "Params.sketch10_height")

sketch11 = body.newObject("Sketcher::SketchObject", "Sketch010")
sketch11.Placement = App.Placement(Vector(0, 268.508287, 298.342541), App.Rotation(Vector(0, 0.743294146, -0.668964732), Vector(1, 0, 0), Vector(0, -0.668964732, -0.743294146), "ZXY"))
sketch11.addGeometry(Part.LineSegment(Vector(-92.168474, -960, 0), Vector(984.12145, -960, 0)), False)
sketch11.addConstraint([
    Sketcher.Constraint("Horizontal", 0),
    Sketcher.Constraint("DistanceY", 0, 1, -1, 1, 960.0),
    Sketcher.Constraint("DistanceX", 0, 1, 0, 2, 1076.289924),
    Sketcher.Constraint("DistanceX", -1, 1, 0, 2, 984.12145),
])
doc.recompute()

additivepipe = body.newObject("PartDesign::AdditivePipe", "AdditivePipe")
additivepipe.Profile = sketch10
additivepipe.Spine = (sketch11, ["Edge1"])

sketch12 = body.newObject("Sketcher::SketchObject", "Sketch011")
sketch12.Placement = App.Placement(Vector(-40, 200, -380), App.Rotation(Vector(0, 0, 1), Vector(0.672672794, 0.739940073, 0), Vector(-0.739940073, 0.672672794, 0), "ZXY"))
sketch12.addGeometry([
    Part.LineSegment(Vector(-20, 20, 0), Vector(-20, -20, 0)),
    Part.LineSegment(Vector(-20, -20, 0), Vector(20, -20, 0)),
    Part.LineSegment(Vector(20, -20, 0), Vector(20, 20, 0)),
    Part.LineSegment(Vector(20, 20, 0), Vector(-20, 20, 0)),
], False)
sketch12.addConstraint([
    Sketcher.Constraint("Coincident", 0, 2, 1, 1),
    Sketcher.Constraint("Coincident", 1, 2, 2, 1),
    Sketcher.Constraint("Coincident", 2, 2, 3, 1),
    Sketcher.Constraint("Coincident", 3, 2, 0, 1),
    Sketcher.Constraint("Vertical", 0),
    Sketcher.Constraint("Horizontal", 1),
    Sketcher.Constraint("Vertical", 2),
    Sketcher.Constraint("Horizontal", 3),
    Sketcher.Constraint("Symmetric", 0, 2, 2, 2, -1, 1),
    Sketcher.Constraint("Equal", 3, 0),
    Sketcher.Constraint("DistanceX", 1, 1, 1, 2, 40.0),
])
sketch12.setExpression("Constraints[10]", "Params.sketch12_width")

sketch13 = body.newObject("Sketcher::SketchObject", "Sketch012")
sketch13.Placement = App.Placement(Vector(81.447964, 89.59276, 0), App.Rotation(Vector(-0.739940073, 0.672672794, 0), Vector(0, 0, 0.999999999), Vector(0.672672794, 0.739940073, 0), "ZXY"))
sketch13.addGeometry(Part.LineSegment(Vector(164.132162, -380, 0), Vector(1353.417661, -380, 0)), False)
sketch13.addConstraint([
    Sketcher.Constraint("Horizontal", 0),
    Sketcher.Constraint("DistanceY", 0, 1, -1, 1, 380.0),
    Sketcher.Constraint("DistanceX", 0, 1, 0, 2, 1189.285499),
    Sketcher.Constraint("DistanceX", -1, 1, 0, 1, 164.132162),
])
doc.recompute()

additivepipe2 = body.newObject("PartDesign::AdditivePipe", "AdditivePipe001")
additivepipe2.Profile = sketch12
additivepipe2.Spine = (sketch13, ["Edge1"])

sketch14 = body.newObject("Sketcher::SketchObject", "Sketch013")
sketch14.AttachmentSupport = (doc.getObject("XZ_Plane"), [""])
sketch14.MapMode = "FlatFace"
sketch14.addGeometry([
    Part.LineSegment(Vector(920, -300, 0), Vector(920, -360, 0)),
    Part.LineSegment(Vector(920, -360, 0), Vector(1000, -360, 0)),
    Part.LineSegment(Vector(1000, -360, 0), Vector(1000, -300, 0)),
    Part.LineSegment(Vector(1000, -300, 0), Vector(920, -300, 0)),
], False)
sketch14.addConstraint([
    Sketcher.Constraint("Coincident", 0, 2, 1, 1),
    Sketcher.Constraint("Coincident", 1, 2, 2, 1),
    Sketcher.Constraint("Coincident", 2, 2, 3, 1),
    Sketcher.Constraint("Coincident", 3, 2, 0, 1),
    Sketcher.Constraint("Vertical", 0),
    Sketcher.Constraint("Horizontal", 1),
    Sketcher.Constraint("Vertical", 2),
    Sketcher.Constraint("Horizontal", 3),
    Sketcher.Constraint("DistanceX", 1, 1, 1, 2, 80.0),
    Sketcher.Constraint("DistanceY", 0, 2, 0, 1, 60.0),
    Sketcher.Constraint("DistanceX", -1, 1, 0, 2, 920.0),
    Sketcher.Constraint("DistanceY", 0, 2, -1, 1, 360.0),
])
sketch14.setExpression("Constraints[8]", "Params.sketch14_width")
sketch14.setExpression("Constraints[9]", "Params.sketch14_height")
pad10 = body.newObject("PartDesign::Pad", "Pad009")
pad10.Profile = sketch14
pad10.setExpression("Length", "Params.pad10_length")
pad10.Reversed = True

sketch15 = body.newObject("Sketcher::SketchObject", "Sketch014")
sketch15.AttachmentSupport = (doc.getObject("XZ_Plane"), [""])
sketch15.MapMode = "FlatFace"
sketch15.AttachmentOffset = App.Placement(Vector(0, 0, -10), App.Rotation())
sketch15.addGeometry(Part.Circle(Vector(960, -330, 0), Vector(0, 0, 1), 5), False)
sketch15.addConstraint([
    Sketcher.Constraint("Diameter", 0, 10.0),
    Sketcher.Constraint("DistanceX", -1, 1, 0, 3, 960.0),
    Sketcher.Constraint("DistanceY", 0, 3, -1, 1, 330.0),
])
sketch15.setExpression("Constraints[0]", "Params.sketch15_diameter")
doc.recompute()
hole = body.newObject("PartDesign::Hole", "Hole")
hole.Profile = sketch15
hole.ThreadType = "None"
hole.setExpression("Diameter", "Params.hole_diameter")
hole.DepthType = "Dimension"
hole.setExpression("Depth", "Params.hole_depth")
hole.DrillPoint = "Flat"
hole.Reversed = True
doc.recompute()

mirrored = body.newObject("PartDesign::Mirrored", "Mirrored")
mirrored.Originals = [pad10, hole]
mirrored.MirrorPlane = (doc.getObject("XY_Plane"), [""])
body.Tip = mirrored
doc.recompute()

mirrored2 = body.newObject("PartDesign::Mirrored", "Mirrored001")
mirrored2.Originals = [pad10, hole]
mirrored2.MirrorPlane = (doc.getObject("YZ_Plane"), [""])
body.Tip = mirrored2

sketch16 = body.newObject("Sketcher::SketchObject", "Sketch015")
sketch16.AttachmentSupport = (doc.getObject("XZ_Plane"), [""])
sketch16.MapMode = "FlatFace"
sketch16.addGeometry([
    Part.LineSegment(Vector(-920, 300, 0), Vector(-920, 360, 0)),
    Part.LineSegment(Vector(-920, 360, 0), Vector(-1000, 360, 0)),
    Part.LineSegment(Vector(-1000, 360, 0), Vector(-1000, 300, 0)),
    Part.LineSegment(Vector(-1000, 300, 0), Vector(-920, 300, 0)),
], False)
sketch16.addConstraint([
    Sketcher.Constraint("Coincident", 0, 2, 1, 1),
    Sketcher.Constraint("Coincident", 1, 2, 2, 1),
    Sketcher.Constraint("Coincident", 2, 2, 3, 1),
    Sketcher.Constraint("Coincident", 3, 2, 0, 1),
    Sketcher.Constraint("Vertical", 0),
    Sketcher.Constraint("Horizontal", 1),
    Sketcher.Constraint("Vertical", 2),
    Sketcher.Constraint("Horizontal", 3),
    Sketcher.Constraint("DistanceX", 1, 2, 1, 1, 80.0),
    Sketcher.Constraint("DistanceY", 0, 1, 0, 2, 60.0),
    Sketcher.Constraint("DistanceX", 0, 2, -1, 1, 920.0),
    Sketcher.Constraint("DistanceY", -1, 1, 0, 2, 360.0),
])
sketch16.setExpression("Constraints[8]", "Params.sketch16_width")
sketch16.setExpression("Constraints[9]", "Params.sketch16_height")
pad11 = body.newObject("PartDesign::Pad", "Pad010")
pad11.Profile = sketch16
pad11.setExpression("Length", "Params.pad11_length")
pad11.Reversed = True

sketch17 = body.newObject("Sketcher::SketchObject", "Sketch016")
sketch17.AttachmentSupport = (doc.getObject("XZ_Plane"), [""])
sketch17.MapMode = "FlatFace"
sketch17.AttachmentOffset = App.Placement(Vector(0, 0, -10), App.Rotation())
sketch17.addGeometry(Part.Circle(Vector(-960, 330, 0), Vector(0, 0, 1), 5), False)
sketch17.addConstraint([
    Sketcher.Constraint("Diameter", 0, 10.0),
    Sketcher.Constraint("DistanceX", 0, 3, -1, 1, 960.0),
    Sketcher.Constraint("DistanceY", -1, 1, 0, 3, 330.0),
])
sketch17.setExpression("Constraints[0]", "Params.sketch17_diameter")
doc.recompute()
hole2 = body.newObject("PartDesign::Hole", "Hole001")
hole2.Profile = sketch17
hole2.ThreadType = "None"
hole2.setExpression("Diameter", "Params.hole2_diameter")
hole2.DepthType = "Dimension"
hole2.setExpression("Depth", "Params.hole2_depth")
hole2.DrillPoint = "Flat"
hole2.Reversed = True

doc.recompute()
